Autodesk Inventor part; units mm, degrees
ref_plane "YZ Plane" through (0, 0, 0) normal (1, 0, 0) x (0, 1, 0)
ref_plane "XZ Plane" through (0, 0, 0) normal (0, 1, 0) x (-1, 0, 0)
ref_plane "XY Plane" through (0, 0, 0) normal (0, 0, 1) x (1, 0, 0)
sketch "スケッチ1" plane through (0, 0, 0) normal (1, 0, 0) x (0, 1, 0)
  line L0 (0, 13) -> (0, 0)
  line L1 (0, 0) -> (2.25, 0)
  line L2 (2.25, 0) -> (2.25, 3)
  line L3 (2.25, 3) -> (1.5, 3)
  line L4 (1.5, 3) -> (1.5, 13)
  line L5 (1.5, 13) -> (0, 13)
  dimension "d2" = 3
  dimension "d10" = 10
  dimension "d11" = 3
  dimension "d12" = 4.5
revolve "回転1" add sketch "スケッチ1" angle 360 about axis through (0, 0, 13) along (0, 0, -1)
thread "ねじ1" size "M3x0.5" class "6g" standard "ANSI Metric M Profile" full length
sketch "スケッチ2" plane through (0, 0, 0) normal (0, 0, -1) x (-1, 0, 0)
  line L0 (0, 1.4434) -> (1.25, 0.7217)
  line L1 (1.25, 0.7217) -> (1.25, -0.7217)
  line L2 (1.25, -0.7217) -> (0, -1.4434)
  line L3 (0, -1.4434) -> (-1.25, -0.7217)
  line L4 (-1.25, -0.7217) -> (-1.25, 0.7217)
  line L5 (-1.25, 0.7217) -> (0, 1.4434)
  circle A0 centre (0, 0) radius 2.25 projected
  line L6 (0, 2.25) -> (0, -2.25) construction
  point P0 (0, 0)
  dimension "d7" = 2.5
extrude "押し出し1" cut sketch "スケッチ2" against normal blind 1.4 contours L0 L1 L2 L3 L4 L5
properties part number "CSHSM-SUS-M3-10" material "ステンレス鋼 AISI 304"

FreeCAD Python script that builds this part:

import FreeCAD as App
import Part
import Sketcher
Q = App.Units.Quantity

doc = App.newDocument("Part")
body = doc.addObject("PartDesign::Body", "Body")

# Sketch on YZ plane
sketch1 = body.newObject("Sketcher::SketchObject", "Sketch")
sketch1.AttachmentSupport = (doc.getObject("YZ_Plane"), [""])
sketch1.MapMode = "FlatFace"
sketch1.addGeometry([
    Part.LineSegment(App.Vector(1.5, 13, 0), App.Vector(0, 13, 0)),  # 0
    Part.LineSegment(App.Vector(0, 13, 0), App.Vector(0, 0, 0)),  # 1
    Part.LineSegment(App.Vector(0, 0, 0), App.Vector(2.2, 0, 0)),  # 2
    Part.LineSegment(App.Vector(2.2, 0, 0), App.Vector(2.2, 3, 0)),  # 3
    Part.LineSegment(App.Vector(2.2, 3, 0), App.Vector(1.5, 3, 0)),  # 4
    Part.LineSegment(App.Vector(1.5, 3, 0), App.Vector(1.5, 13, 0)),  # 5
], False)
sketch1.addConstraint([
    Sketcher.Constraint("Coincident", 0, 2, 1, 1),
    Sketcher.Constraint("Coincident", 1, 2, 2, 1),
    Sketcher.Constraint("Coincident", 2, 2, 3, 1),
    Sketcher.Constraint("Coincident", 3, 2, 4, 1),
    Sketcher.Constraint("Coincident", 4, 2, 5, 1),
    Sketcher.Constraint("Coincident", 5, 2, 0, 1),
    Sketcher.Constraint("Horizontal", 0),
    Sketcher.Constraint("Vertical", 1),
    Sketcher.Constraint("Horizontal", 2),
    Sketcher.Constraint("Vertical", 3),
    Sketcher.Constraint("Horizontal", 4),
    Sketcher.Constraint("Vertical", 5),
    Sketcher.Constraint("Coincident", 1, 2, -1, 1),
    Sketcher.Constraint("DistanceY", 3, 1, 3, 2, 3.0),
    Sketcher.Constraint("DistanceY", 5, 1, 5, 2, 10.0),
    Sketcher.Constraint("DistanceX", 0, 2, 0, 1, 1.5),
    Sketcher.Constraint("DistanceX", 2, 1, 2, 2, 2.25),
])
revolution = body.newObject("PartDesign::Revolution", "Revolution")
revolution.Profile = sketch1
revolution.ReferenceAxis = (sketch1, ["V_Axis"])
revolution.Angle = 360

# Sketch on XY plane
sketch2 = body.newObject("Sketcher::SketchObject", "Sketch001")
sketch2.AttachmentSupport = (doc.getObject("XY_Plane"), [""])
sketch2.MapMode = "FlatFace"
sketch2.addGeometry([
    Part.LineSegment(App.Vector(-1.2, 0.7, 0), App.Vector(0, 1.4, 0)),  # 0
    Part.LineSegment(App.Vector(0, 1.4, 0), App.Vector(1.2, 0.7, 0)),  # 1
    Part.LineSegment(App.Vector(1.2, 0.7, 0), App.Vector(1.2, -0.7, 0)),  # 2
    Part.LineSegment(App.Vector(1.2, -0.7, 0), App.Vector(0, -1.4, 0)),  # 3
    Part.LineSegment(App.Vector(0, -1.4, 0), App.Vector(-1.2, -0.7, 0)),  # 4
    Part.LineSegment(App.Vector(-1.2, -0.7, 0), App.Vector(-1.2, 0.7, 0)),  # 5
], False)
sketch2.addConstraint([
    Sketcher.Constraint("Coincident", 0, 2, 1, 1),
    Sketcher.Constraint("Coincident", 1, 2, 2, 1),
    Sketcher.Constraint("Coincident", 2, 2, 3, 1),
    Sketcher.Constraint("Coincident", 3, 2, 4, 1),
    Sketcher.Constraint("Coincident", 4, 2, 5, 1),
    Sketcher.Constraint("Coincident", 5, 2, 0, 1),
    Sketcher.Constraint("Vertical", 2),
    Sketcher.Constraint("Vertical", 5),
    Sketcher.Constraint("Symmetric", 0, 2, 3, 2, -1, 1),
    Sketcher.Constraint("Symmetric", 1, 2, 4, 2, -1, 1),
    Sketcher.Constraint("PointOnObject", 0, 2, -2),
    Sketcher.Constraint("Parallel", 0, 3),
    Sketcher.Constraint("Horizontal", 2, 2, 4, 2),
    Sketcher.Constraint("DistanceX", 4, 2, 2, 2, 2.5),
    Sketcher.Constraint("Angle", 0, Q("30.0004 deg")),
    Sketcher.Constraint("DistanceY", 2, 2, 2, 1, 1.4434),
])
pocket1 = body.newObject("PartDesign::Pocket", "Pocket")
pocket1.Profile = sketch2
pocket1.Length = 1.4
pocket1.Reversed = True

doc.recompute()
